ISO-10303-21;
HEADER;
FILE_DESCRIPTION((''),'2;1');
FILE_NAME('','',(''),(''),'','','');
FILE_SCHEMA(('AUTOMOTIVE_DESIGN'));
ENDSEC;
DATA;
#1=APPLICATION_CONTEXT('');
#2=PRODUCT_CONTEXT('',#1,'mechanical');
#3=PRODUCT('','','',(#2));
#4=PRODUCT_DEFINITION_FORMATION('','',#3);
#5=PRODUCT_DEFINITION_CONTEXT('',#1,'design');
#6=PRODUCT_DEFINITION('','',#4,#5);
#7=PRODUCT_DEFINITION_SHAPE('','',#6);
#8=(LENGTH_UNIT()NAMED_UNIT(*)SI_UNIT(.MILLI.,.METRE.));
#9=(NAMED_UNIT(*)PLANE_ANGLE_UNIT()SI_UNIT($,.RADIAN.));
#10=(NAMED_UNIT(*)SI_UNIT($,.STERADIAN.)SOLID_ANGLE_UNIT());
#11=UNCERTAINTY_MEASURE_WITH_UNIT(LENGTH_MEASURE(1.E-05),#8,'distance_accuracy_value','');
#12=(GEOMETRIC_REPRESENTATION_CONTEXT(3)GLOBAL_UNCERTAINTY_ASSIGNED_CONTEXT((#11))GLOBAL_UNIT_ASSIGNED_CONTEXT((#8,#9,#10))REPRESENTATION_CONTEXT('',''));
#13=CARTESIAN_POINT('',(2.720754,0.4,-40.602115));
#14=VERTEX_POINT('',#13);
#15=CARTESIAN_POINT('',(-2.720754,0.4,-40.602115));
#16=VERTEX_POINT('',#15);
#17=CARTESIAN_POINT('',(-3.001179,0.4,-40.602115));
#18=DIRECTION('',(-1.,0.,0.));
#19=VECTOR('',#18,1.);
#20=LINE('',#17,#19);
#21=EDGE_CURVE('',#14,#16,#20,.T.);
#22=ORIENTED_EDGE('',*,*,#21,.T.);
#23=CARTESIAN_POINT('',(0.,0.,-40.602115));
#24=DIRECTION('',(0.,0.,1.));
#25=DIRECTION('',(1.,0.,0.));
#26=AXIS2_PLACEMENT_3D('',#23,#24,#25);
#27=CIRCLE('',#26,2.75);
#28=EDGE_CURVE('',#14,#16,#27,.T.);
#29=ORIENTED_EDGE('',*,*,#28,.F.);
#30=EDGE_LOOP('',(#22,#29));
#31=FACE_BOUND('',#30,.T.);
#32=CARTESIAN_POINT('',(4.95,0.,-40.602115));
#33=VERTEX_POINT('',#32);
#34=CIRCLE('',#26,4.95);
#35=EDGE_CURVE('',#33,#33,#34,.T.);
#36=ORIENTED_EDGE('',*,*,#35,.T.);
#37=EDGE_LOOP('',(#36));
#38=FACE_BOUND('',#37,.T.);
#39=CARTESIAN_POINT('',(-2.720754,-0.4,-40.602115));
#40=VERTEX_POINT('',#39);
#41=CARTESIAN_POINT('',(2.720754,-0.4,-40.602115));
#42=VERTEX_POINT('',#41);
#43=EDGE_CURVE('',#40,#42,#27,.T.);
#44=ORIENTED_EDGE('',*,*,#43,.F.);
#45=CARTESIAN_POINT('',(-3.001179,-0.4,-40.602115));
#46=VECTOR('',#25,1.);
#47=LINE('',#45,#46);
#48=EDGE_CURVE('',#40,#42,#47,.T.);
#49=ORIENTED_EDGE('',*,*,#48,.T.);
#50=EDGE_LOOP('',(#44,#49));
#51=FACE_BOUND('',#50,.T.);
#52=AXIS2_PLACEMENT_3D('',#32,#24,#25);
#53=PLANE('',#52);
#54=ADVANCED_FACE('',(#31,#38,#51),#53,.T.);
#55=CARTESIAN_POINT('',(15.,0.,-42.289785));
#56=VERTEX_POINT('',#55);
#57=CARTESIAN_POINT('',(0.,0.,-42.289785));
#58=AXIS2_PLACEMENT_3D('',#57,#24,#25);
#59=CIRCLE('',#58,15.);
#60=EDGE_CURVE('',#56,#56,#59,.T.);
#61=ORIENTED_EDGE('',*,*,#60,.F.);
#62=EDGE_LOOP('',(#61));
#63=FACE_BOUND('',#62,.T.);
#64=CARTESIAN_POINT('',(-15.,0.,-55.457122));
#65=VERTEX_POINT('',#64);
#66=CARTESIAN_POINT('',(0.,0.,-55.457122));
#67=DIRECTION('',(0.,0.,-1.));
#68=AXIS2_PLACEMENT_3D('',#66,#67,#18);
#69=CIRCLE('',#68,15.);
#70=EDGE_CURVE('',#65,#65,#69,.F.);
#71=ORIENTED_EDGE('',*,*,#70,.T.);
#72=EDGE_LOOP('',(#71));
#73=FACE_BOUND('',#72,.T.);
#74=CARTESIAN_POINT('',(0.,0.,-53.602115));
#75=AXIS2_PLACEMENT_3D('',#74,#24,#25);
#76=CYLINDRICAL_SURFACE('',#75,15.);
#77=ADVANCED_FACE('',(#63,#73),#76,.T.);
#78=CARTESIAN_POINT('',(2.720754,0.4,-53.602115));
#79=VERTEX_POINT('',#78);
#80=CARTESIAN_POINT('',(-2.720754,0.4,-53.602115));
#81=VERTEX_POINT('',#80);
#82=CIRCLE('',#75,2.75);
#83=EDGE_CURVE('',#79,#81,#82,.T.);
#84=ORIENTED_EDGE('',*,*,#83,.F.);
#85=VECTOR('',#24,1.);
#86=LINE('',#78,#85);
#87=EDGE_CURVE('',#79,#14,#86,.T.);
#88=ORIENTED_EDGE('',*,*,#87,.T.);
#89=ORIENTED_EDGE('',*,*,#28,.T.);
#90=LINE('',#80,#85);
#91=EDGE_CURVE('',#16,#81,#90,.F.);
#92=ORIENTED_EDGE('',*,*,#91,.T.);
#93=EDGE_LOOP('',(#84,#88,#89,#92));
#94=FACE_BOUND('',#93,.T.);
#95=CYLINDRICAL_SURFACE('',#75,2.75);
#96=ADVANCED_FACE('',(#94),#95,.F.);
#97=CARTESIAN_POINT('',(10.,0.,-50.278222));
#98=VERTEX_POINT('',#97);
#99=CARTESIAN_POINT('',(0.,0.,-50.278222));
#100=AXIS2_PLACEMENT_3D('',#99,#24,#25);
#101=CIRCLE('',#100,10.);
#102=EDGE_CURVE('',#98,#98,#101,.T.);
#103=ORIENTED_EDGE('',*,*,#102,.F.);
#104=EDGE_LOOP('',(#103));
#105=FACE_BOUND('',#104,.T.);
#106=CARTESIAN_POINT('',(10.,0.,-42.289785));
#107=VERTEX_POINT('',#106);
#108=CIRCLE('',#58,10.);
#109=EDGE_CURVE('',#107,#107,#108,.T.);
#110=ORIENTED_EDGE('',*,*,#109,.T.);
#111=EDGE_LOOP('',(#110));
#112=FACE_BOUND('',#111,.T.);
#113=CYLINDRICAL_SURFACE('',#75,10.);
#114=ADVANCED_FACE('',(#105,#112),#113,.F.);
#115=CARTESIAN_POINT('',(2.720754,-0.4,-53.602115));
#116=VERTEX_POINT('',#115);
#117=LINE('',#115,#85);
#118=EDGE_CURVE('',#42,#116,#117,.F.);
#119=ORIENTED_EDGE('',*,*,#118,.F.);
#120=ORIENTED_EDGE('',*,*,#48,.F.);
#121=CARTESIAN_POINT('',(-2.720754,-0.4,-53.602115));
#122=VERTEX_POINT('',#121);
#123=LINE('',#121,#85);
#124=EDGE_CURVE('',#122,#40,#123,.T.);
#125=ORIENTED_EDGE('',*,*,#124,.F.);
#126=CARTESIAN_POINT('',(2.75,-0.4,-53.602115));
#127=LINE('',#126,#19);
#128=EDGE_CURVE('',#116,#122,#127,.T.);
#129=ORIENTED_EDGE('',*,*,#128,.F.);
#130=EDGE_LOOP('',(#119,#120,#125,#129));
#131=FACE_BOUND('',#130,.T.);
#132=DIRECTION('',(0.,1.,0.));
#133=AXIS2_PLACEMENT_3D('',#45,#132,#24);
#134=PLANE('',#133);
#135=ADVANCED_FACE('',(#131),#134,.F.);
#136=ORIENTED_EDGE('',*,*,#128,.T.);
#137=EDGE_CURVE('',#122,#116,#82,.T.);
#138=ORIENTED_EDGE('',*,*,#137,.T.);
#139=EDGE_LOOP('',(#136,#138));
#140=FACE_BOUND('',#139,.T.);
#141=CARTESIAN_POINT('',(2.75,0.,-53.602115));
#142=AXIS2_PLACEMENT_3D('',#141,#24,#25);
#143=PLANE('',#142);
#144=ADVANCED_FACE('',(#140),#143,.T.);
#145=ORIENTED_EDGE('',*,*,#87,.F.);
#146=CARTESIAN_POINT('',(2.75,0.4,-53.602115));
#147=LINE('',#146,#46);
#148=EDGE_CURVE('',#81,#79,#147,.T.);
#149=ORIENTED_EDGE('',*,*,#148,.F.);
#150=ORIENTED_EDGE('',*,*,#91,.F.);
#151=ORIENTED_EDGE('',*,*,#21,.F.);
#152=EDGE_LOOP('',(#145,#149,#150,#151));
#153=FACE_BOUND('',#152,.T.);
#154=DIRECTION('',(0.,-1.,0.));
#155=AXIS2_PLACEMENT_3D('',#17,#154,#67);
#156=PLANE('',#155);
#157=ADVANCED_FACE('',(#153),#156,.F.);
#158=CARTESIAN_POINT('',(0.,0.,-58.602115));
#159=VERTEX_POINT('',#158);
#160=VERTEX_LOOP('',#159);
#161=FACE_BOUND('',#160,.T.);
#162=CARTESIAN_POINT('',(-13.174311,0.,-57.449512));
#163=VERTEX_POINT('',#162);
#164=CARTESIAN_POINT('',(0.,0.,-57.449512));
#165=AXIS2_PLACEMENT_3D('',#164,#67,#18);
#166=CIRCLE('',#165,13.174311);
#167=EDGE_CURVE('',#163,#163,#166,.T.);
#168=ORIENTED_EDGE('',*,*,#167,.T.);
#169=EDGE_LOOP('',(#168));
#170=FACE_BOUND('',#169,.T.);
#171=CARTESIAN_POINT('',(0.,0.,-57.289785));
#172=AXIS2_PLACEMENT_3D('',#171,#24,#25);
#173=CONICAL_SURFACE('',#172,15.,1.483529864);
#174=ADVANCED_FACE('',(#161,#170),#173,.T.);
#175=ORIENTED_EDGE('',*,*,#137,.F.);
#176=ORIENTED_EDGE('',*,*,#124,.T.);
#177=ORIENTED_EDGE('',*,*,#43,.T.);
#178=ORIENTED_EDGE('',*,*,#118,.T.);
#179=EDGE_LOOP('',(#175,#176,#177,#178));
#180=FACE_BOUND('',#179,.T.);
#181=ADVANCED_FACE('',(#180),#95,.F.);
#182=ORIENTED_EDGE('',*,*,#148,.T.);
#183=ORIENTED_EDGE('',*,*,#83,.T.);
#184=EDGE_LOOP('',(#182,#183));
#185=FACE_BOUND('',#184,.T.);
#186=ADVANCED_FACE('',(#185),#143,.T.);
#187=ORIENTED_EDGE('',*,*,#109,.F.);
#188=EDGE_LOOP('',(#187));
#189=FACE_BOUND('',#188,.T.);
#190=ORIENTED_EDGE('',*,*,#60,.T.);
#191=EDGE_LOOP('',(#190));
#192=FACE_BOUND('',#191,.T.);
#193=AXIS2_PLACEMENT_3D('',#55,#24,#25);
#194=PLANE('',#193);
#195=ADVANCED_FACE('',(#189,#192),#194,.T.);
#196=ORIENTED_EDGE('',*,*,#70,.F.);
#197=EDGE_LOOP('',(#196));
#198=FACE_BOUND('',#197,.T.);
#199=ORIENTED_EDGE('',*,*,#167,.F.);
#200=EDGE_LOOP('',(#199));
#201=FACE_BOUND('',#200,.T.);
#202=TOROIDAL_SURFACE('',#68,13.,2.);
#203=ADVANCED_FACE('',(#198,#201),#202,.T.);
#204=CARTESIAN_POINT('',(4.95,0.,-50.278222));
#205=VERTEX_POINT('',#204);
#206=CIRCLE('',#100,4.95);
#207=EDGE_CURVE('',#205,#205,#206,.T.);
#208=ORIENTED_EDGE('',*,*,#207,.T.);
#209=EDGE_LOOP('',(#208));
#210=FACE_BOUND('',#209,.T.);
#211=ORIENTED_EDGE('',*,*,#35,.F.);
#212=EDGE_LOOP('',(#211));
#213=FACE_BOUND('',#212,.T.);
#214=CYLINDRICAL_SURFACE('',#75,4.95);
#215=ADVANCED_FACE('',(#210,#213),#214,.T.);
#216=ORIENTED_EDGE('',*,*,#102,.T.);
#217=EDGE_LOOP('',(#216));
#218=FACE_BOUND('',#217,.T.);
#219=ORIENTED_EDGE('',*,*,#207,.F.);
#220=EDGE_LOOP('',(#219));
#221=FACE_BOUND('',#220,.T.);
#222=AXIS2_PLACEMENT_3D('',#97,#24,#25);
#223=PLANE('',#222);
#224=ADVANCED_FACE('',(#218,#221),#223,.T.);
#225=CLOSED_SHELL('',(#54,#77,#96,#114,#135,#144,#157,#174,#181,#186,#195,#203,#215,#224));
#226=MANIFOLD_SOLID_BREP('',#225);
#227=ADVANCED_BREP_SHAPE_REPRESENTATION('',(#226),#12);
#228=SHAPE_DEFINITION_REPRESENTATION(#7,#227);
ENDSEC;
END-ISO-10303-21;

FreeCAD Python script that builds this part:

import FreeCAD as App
import Part
import Sketcher
from FreeCAD import Vector
Q = App.Units.Quantity


def edges_at(feature, points):
    """Names of the edges that pass closest to the given points."""
    edges = feature.Shape.Edges
    near = lambda p: min(range(len(edges)), key=lambda i: edges[i].distToShape(Part.Vertex(*p))[0])
    return sorted({f"Edge{near(p) + 1}" for p in points})


def add_polygon(sketch, points):
    """Adds a closed chain of lines whose ends are joined by coincident constraints."""
    first, n = sketch.GeometryCount, len(points)
    for a, b in zip(points, points[1:] + points[:1]):
        sketch.addGeometry(Part.LineSegment(App.Vector(*a, 0), App.Vector(*b, 0)), False)
    for i in range(n):
        sketch.addConstraint(Sketcher.Constraint("Coincident", first + i, 2, first + (i + 1) % n, 1))

doc = App.newDocument("Part")
body = doc.addObject("PartDesign::Body", "Body")

# Sketch on XZ plane
sketch1 = body.newObject("Sketcher::SketchObject", "Sketch")
sketch1.AttachmentSupport = (doc.getObject("XZ_Plane"), [""])
sketch1.MapMode = "FlatFace"
add_polygon(sketch1, [(2.8, -53.6), (2.8, -40.6), (5, -40.6), (5, -50.3), (10, -50.3), (10, -42.3), (15, -42.3), (15, -57.3), (0, -58.6), (0, -53.6)])  # lines 0-9
sketch1.addConstraint([
    Sketcher.Constraint("Vertical", 0),
    Sketcher.Constraint("Horizontal", 1),
    Sketcher.Constraint("Vertical", 2),
    Sketcher.Constraint("Horizontal", 3),
    Sketcher.Constraint("Vertical", 4),
    Sketcher.Constraint("Horizontal", 5),
    Sketcher.Constraint("Vertical", 6),
    Sketcher.Constraint("Vertical", 8),
    Sketcher.Constraint("Horizontal", 9),
    Sketcher.Constraint("PointOnObject", 7, 2, -2),
    Sketcher.Constraint("Equal", 5, 8),
    Sketcher.Constraint("DistanceX", 5, 1, 5, 2, Q("5 mm")),
    Sketcher.Constraint("DistanceY", 0, 1, 0, 2, Q("13 mm")),
    Sketcher.Constraint("DistanceY", 6, 2, 6, 1, Q("15 mm")),
    Sketcher.Constraint("Angle", 7, Q("-175 deg")),
    Sketcher.Constraint("DistanceX", 1, 1, 1, 2, Q("2.2 mm")),
    Sketcher.Constraint("DistanceX", -1, 1, 3, 2, Q("10 mm")),
    Sketcher.Constraint("DistanceX", 3, 1, 3, 2, Q("5.05 mm")),
    Sketcher.Constraint("DistanceY", 2, 2, 2, 1, Q("9.676108 mm")),
    Sketcher.Constraint("DistanceY", 0, 2, -1, 1, Q("40.602115 mm")),
])
revolution = body.newObject("PartDesign::Revolution", "Revolution")
revolution.Profile = sketch1
revolution.ReferenceAxis = (sketch1, ["V_Axis"])
revolution.Angle = 360
doc.recompute()

fillet = body.newObject("PartDesign::Fillet", "Fillet")
fillet.Base = (revolution, edges_at(revolution, [(-15, 0, -57.29)]))
fillet.Radius = 2

# Sketch on XY plane
sketch2 = body.newObject("Sketcher::SketchObject", "Sketch001")
sketch2.AttachmentSupport = (doc.getObject("XY_Plane"), [""])
sketch2.MapMode = "FlatFace"
sketch2.AttachmentOffset = App.Placement(Vector(0, 0, -53.602115), App.Rotation())
add_polygon(sketch2, [(-3, 0.4), (-3, -0.4), (2.9, -0.4), (2.9, 0.4)])  # lines 0-3
sketch2.addConstraint([
    Sketcher.Constraint("Vertical", 0),
    Sketcher.Constraint("Horizontal", 1),
    Sketcher.Constraint("Vertical", 2),
    Sketcher.Constraint("Horizontal", 3),
    Sketcher.Constraint("DistanceY", 0, 2, 0, 1, Q("0.8 mm")),
    Sketcher.Constraint("DistanceY", 0, 2, -1, 1, Q("0.4 mm")),
    Sketcher.Constraint("DistanceX", 1, 1, 1, 2, Q("5.905041 mm")),
    Sketcher.Constraint("DistanceX", 0, 2, -1, 1, Q("3.001179 mm")),
])
pad1 = body.newObject("PartDesign::Pad", "Pad")
pad1.Profile = sketch2
pad1.Length = 13

doc.recompute()
